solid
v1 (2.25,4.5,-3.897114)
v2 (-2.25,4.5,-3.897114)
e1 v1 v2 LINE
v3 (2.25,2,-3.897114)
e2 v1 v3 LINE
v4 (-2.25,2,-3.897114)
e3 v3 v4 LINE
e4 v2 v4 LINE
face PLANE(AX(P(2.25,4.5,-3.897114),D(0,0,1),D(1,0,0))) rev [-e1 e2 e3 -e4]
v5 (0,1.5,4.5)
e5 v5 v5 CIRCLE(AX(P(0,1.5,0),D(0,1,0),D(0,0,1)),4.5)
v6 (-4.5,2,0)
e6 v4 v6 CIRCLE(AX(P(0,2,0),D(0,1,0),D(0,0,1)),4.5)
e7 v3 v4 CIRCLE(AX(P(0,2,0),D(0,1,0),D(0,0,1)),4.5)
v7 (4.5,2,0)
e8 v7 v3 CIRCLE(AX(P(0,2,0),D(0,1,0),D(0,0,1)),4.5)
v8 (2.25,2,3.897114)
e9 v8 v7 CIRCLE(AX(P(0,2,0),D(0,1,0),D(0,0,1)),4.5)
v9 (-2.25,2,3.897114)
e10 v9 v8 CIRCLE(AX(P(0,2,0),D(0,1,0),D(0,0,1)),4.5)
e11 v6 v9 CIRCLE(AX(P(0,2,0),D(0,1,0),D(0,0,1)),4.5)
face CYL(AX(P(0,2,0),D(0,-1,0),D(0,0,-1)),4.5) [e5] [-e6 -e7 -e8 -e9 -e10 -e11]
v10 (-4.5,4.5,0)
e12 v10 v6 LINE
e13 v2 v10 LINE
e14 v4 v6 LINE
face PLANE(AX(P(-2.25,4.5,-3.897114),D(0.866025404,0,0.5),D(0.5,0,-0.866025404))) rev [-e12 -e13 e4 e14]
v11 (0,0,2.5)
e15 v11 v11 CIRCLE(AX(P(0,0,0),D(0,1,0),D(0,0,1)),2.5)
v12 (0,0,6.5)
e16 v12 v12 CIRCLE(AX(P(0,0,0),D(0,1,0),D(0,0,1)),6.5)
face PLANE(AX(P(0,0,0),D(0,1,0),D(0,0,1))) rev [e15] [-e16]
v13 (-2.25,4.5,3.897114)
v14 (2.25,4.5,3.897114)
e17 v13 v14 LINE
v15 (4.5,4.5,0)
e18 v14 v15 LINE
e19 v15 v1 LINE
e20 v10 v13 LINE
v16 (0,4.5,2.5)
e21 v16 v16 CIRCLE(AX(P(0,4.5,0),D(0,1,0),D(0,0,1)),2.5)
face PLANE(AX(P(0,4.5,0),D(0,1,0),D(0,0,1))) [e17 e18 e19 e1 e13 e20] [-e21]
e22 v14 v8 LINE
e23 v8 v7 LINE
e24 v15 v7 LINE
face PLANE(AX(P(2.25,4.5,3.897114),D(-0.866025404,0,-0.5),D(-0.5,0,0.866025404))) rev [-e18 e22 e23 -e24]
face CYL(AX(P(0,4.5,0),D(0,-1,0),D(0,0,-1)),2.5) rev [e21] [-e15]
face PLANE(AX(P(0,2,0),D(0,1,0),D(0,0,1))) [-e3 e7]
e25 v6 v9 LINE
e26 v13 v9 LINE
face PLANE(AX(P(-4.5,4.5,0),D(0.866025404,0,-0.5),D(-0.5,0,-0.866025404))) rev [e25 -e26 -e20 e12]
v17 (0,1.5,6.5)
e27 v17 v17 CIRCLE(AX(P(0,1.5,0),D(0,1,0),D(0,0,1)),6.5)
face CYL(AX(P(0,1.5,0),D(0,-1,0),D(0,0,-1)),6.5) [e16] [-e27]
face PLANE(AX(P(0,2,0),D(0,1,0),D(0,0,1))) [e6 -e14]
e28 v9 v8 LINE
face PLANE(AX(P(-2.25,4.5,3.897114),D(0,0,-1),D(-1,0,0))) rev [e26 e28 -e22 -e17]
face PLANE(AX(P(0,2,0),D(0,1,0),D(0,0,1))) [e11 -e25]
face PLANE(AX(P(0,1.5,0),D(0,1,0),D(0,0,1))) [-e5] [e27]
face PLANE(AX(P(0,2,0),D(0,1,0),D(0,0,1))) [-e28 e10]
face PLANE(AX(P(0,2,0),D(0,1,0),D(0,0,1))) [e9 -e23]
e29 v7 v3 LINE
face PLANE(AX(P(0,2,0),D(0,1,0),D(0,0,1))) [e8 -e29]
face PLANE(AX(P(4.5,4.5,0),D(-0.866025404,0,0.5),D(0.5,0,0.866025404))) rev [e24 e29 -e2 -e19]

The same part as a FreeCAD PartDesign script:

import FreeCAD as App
import Part
import Sketcher
from FreeCAD import Vector
Q = App.Units.Quantity

doc = App.newDocument("Part")
body = doc.addObject("PartDesign::Body", "Body")

# Sketch on XZ plane
sketch1 = doc.addObject("Sketcher::SketchObject", "Sketch")
body.addObject(sketch1)
sketch1.AttachmentSupport = (doc.XZ_Plane, [""])
sketch1.MapMode = "FlatFace"
sketch1.addGeometry(Part.Circle(Vector(0, 0, 0), Vector(0, 0, 1), 6), False)
sketch1.addConstraint(Sketcher.Constraint("Coincident", 0, 3, -1, 1))
sketch1.addConstraint(Sketcher.Constraint("Diameter", 0, 13.0))
pad1 = doc.addObject("PartDesign::Pad", "Pad")
body.addObject(pad1)
pad1.Profile = sketch1
pad1.Length = 1.5
pad1.Reversed = True

# Sketch on XZ plane
sketch2 = doc.addObject("Sketcher::SketchObject", "Sketch001")
body.addObject(sketch2)
sketch2.AttachmentSupport = (doc.XZ_Plane, [""])
sketch2.MapMode = "FlatFace"
sketch2.AttachmentOffset = App.Placement(Vector(0, 0, -1.5), App.Rotation())
sketch2.addGeometry(Part.Circle(Vector(0, 0, 0), Vector(0, 0, 1), 4.5), False)
sketch2.addConstraint(Sketcher.Constraint("Coincident", 0, 3, -1, 1))
sketch2.addConstraint(Sketcher.Constraint("Diameter", 0, 9.0))
pad2 = doc.addObject("PartDesign::Pad", "Pad001")
body.addObject(pad2)
pad2.Profile = sketch2
pad2.Length = 0.5
pad2.Reversed = True

# Sketch on XZ plane
sketch3 = doc.addObject("Sketcher::SketchObject", "Sketch002")
body.addObject(sketch3)
sketch3.AttachmentSupport = (doc.XZ_Plane, [""])
sketch3.MapMode = "FlatFace"
sketch3.AttachmentOffset = App.Placement(Vector(0, 0, -2), App.Rotation())
sketch3.addGeometry(Part.LineSegment(Vector(-4.5, 0, 0), Vector(-2.2, 3.9, 0)), False)
sketch3.addGeometry(Part.LineSegment(Vector(-2.2, 3.9, 0), Vector(2.2, 3.9, 0)), False)
sketch3.addGeometry(Part.LineSegment(Vector(2.2, 3.9, 0), Vector(4.5, 0, 0)), False)
sketch3.addGeometry(Part.LineSegment(Vector(4.5, 0, 0), Vector(2.2, -3.9, 0)), False)
sketch3.addGeometry(Part.LineSegment(Vector(2.2, -3.9, 0), Vector(-2.2, -3.9, 0)), False)
sketch3.addGeometry(Part.LineSegment(Vector(-2.2, -3.9, 0), Vector(-4.5, 0, 0)), False)
sketch3.addGeometry(Part.Circle(Vector(0, 0, 0), Vector(0, 0, 1), 2.5), False)
sketch3.addConstraint(Sketcher.Constraint("Coincident", 0, 2, 1, 1))
sketch3.addConstraint(Sketcher.Constraint("Coincident", 1, 2, 2, 1))
sketch3.addConstraint(Sketcher.Constraint("Coincident", 2, 2, 3, 1))
sketch3.addConstraint(Sketcher.Constraint("Coincident", 3, 2, 4, 1))
sketch3.addConstraint(Sketcher.Constraint("Coincident", 4, 2, 5, 1))
sketch3.addConstraint(Sketcher.Constraint("Coincident", 5, 2, 0, 1))
sketch3.addConstraint(Sketcher.Constraint("Horizontal", 1))
sketch3.addConstraint(Sketcher.Constraint("Horizontal", 4))
sketch3.addConstraint(Sketcher.Constraint("Coincident", 6, 3, -1, 1))
sketch3.addConstraint(Sketcher.Constraint("Symmetric", 0, 2, 3, 2, -1, 1))
sketch3.addConstraint(Sketcher.Constraint("Symmetric", 2, 2, 5, 2, -1, 1))
sketch3.addConstraint(Sketcher.Constraint("PointOnObject", 2, 2, -1))
sketch3.addConstraint(Sketcher.Constraint("Parallel", 2, 5))
sketch3.addConstraint(Sketcher.Constraint("Vertical", 1, 2, 3, 2))
sketch3.addConstraint(Sketcher.Constraint("Diameter", 6, 5.0))
sketch3.addConstraint(Sketcher.Constraint("Angle", 0, Q("60 deg")))
sketch3.addConstraint(Sketcher.Constraint("DistanceX", 1, 1, 1, 2, 4.5))
sketch3.addConstraint(Sketcher.Constraint("Distance", 0, 4.5))
pad3 = doc.addObject("PartDesign::Pad", "Pad002")
body.addObject(pad3)
pad3.Profile = sketch3
pad3.Length = 2.5
pad3.Reversed = True

# Sketch on XZ plane
sketch4 = doc.addObject("Sketcher::SketchObject", "Sketch003")
body.addObject(sketch4)
sketch4.AttachmentSupport = (doc.XZ_Plane, [""])
sketch4.MapMode = "FlatFace"
sketch4.AttachmentOffset = App.Placement(Vector(0, 0, -2), App.Rotation())
sketch4.addGeometry(Part.Circle(Vector(0, 0, 0), Vector(0, 0, 1), 2.5), False)
sketch4.addConstraint(Sketcher.Constraint("Coincident", 0, 3, -1, 1))
sketch4.addConstraint(Sketcher.Constraint("Diameter", 0, 5.0))
pocket1 = doc.addObject("PartDesign::Pocket", "Pocket")
body.addObject(pocket1)
pocket1.Profile = sketch4
pocket1.Length = 3.5
pocket1.Reversed = True

doc.recompute()
